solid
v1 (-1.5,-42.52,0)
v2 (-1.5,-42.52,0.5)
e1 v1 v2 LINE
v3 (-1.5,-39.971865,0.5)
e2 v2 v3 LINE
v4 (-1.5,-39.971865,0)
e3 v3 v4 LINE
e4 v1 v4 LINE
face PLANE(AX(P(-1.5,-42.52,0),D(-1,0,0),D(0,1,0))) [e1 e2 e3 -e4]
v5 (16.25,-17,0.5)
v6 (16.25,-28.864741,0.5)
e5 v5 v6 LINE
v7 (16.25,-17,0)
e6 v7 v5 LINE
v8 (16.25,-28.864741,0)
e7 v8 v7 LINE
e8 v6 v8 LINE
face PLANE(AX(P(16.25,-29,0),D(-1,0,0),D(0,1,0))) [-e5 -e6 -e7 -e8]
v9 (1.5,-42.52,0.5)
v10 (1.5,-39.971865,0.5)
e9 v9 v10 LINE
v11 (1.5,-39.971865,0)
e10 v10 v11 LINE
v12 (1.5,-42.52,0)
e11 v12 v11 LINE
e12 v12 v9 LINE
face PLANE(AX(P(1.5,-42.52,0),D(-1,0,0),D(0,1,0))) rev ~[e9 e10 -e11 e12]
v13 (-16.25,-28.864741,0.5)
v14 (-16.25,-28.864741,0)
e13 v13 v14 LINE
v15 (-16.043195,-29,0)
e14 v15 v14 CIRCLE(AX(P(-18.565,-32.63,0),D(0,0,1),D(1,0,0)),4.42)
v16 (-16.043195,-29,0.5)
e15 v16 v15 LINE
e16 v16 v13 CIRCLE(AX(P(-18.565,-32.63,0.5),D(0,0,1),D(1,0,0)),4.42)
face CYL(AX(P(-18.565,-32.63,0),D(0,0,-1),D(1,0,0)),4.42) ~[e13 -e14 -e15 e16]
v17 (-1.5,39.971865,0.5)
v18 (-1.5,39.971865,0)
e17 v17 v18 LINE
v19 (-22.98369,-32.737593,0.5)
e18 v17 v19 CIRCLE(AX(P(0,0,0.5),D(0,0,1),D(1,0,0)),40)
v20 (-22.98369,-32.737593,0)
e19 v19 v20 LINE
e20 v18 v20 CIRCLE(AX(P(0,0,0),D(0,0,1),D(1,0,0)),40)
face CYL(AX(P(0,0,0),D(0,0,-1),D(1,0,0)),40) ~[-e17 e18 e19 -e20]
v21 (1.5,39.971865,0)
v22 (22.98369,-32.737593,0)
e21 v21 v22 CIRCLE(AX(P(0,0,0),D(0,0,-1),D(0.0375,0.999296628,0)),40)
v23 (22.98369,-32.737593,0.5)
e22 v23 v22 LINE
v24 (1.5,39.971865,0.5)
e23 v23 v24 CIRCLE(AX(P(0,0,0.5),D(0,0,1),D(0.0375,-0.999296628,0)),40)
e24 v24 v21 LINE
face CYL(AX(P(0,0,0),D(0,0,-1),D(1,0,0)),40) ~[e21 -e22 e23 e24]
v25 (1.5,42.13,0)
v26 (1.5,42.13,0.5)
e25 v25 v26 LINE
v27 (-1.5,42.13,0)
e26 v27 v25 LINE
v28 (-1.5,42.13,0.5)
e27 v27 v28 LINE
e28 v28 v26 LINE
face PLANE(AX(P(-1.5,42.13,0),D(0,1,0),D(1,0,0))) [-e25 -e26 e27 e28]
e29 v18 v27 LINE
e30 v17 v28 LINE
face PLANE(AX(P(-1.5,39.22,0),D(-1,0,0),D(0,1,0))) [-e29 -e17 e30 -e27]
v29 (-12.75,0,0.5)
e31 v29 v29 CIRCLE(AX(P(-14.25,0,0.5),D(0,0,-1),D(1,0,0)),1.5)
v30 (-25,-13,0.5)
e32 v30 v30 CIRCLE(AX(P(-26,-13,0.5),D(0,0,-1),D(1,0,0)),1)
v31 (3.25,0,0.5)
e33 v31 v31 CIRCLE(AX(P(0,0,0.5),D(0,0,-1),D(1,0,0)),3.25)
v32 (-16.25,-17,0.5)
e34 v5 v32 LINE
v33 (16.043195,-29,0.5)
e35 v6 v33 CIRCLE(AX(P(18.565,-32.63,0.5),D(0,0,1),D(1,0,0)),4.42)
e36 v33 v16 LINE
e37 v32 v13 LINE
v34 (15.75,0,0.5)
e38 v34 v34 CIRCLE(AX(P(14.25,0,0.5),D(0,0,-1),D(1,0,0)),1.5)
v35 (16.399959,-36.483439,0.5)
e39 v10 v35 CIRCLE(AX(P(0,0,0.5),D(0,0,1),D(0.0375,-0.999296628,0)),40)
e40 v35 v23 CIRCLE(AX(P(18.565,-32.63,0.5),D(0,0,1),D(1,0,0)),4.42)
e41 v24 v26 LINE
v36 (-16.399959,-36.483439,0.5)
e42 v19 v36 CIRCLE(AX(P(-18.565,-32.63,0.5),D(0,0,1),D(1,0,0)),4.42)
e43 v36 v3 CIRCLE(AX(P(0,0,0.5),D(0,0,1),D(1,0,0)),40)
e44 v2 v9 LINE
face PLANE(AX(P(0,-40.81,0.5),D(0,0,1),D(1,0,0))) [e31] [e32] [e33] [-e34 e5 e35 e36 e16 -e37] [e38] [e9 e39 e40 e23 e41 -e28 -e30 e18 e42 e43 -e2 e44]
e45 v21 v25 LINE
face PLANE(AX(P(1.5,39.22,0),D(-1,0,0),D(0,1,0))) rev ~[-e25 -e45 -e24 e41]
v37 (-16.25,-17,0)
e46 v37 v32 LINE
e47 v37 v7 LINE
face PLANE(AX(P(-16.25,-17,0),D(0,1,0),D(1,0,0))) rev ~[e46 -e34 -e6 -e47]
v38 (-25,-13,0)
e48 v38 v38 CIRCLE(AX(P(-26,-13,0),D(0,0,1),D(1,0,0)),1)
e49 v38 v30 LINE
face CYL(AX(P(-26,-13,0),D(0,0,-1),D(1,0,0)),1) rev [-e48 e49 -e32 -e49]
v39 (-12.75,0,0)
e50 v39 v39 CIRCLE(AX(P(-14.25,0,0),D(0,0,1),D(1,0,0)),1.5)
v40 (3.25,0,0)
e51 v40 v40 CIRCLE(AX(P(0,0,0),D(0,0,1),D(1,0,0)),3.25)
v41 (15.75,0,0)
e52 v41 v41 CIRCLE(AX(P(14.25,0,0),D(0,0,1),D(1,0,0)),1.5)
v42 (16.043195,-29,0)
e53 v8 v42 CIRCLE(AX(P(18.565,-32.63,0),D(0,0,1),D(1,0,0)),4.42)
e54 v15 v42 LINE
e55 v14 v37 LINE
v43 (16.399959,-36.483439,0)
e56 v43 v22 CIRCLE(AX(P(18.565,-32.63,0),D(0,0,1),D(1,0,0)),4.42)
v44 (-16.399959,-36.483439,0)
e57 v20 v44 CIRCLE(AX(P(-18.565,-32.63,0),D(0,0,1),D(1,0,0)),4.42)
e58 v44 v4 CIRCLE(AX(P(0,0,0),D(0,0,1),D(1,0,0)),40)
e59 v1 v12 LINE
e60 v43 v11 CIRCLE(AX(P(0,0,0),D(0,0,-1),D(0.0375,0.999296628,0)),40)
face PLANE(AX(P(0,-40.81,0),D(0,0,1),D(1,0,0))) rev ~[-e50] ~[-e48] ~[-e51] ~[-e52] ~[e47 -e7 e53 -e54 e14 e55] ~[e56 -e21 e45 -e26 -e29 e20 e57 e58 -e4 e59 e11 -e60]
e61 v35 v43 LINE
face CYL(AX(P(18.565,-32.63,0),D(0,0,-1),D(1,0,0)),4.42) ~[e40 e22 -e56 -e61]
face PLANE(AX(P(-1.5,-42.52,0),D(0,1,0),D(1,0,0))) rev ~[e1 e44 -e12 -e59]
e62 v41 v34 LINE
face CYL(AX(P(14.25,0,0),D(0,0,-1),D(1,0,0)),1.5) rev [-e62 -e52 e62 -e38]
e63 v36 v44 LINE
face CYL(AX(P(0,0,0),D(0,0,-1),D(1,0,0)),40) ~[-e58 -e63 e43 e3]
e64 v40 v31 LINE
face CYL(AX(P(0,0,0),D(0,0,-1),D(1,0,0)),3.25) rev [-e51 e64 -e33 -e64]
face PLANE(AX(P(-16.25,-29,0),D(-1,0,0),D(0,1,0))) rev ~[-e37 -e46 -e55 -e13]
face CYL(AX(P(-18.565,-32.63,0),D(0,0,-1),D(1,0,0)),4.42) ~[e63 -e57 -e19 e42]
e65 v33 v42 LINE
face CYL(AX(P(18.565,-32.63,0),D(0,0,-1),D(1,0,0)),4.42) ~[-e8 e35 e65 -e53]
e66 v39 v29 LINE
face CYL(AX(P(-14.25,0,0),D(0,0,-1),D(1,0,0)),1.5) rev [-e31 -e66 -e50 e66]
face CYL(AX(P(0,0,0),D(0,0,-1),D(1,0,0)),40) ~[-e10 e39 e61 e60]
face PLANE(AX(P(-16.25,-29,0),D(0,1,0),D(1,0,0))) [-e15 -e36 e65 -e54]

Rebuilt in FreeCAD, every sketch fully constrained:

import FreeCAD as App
import Part
import Sketcher
from FreeCAD import Vector

doc = App.newDocument("Part")
body = doc.addObject("PartDesign::Body", "Body")

# Sketch on XY plane
sketch1 = body.newObject("Sketcher::SketchObject", "Sketch")
sketch1.AttachmentSupport = (doc.getObject("XY_Plane"), [""])
sketch1.MapMode = "FlatFace"
sketch1.addGeometry(Part.Circle(Vector(0, 0, 0), Vector(0, 0, 1), 40), False)
sketch1.addConstraint([
    Sketcher.Constraint("Coincident", 0, 3, -1, 1),
    Sketcher.Constraint("Diameter", 0, 80.0),
])
pad1 = body.newObject("PartDesign::Pad", "Pad")
pad1.Profile = sketch1
pad1.Length = 0.5

# Sketch on XY plane
sketch2 = body.newObject("Sketcher::SketchObject", "Sketch001")
sketch2.AttachmentSupport = (doc.getObject("XY_Plane"), [""])
sketch2.MapMode = "FlatFace"
sketch2.addGeometry([
    Part.LineSegment(Vector(-16, -17, 0), Vector(-16, -29, 0)),
    Part.LineSegment(Vector(-16, -29, 0), Vector(16, -29, 0)),
    Part.LineSegment(Vector(16, -29, 0), Vector(16, -17, 0)),
    Part.LineSegment(Vector(16, -17, 0), Vector(-16, -17, 0)),
], False)
sketch2.addConstraint([
    Sketcher.Constraint("Coincident", 0, 2, 1, 1),
    Sketcher.Constraint("Coincident", 1, 2, 2, 1),
    Sketcher.Constraint("Coincident", 2, 2, 3, 1),
    Sketcher.Constraint("Coincident", 3, 2, 0, 1),
    Sketcher.Constraint("Vertical", 0),
    Sketcher.Constraint("Horizontal", 1),
    Sketcher.Constraint("Vertical", 2),
    Sketcher.Constraint("Horizontal", 3),
    Sketcher.Constraint("DistanceY", 0, 2, 0, 1, 12.0),
    Sketcher.Constraint("DistanceX", 1, 1, 1, 2, 32.5),
    Sketcher.Constraint("DistanceY", 0, 2, -1, 1, 29.0),
    Sketcher.Constraint("DistanceX", 0, 2, -1, 1, 16.25),
])
pocket1 = body.newObject("PartDesign::Pocket", "Pocket")
pocket1.Profile = sketch2
pocket1.Type = "ThroughAll"
pocket1.Reversed = True

# Sketch on XY plane
sketch3 = body.newObject("Sketcher::SketchObject", "Sketch002")
sketch3.AttachmentSupport = (doc.getObject("XY_Plane"), [""])
sketch3.MapMode = "FlatFace"
sketch3.addGeometry([
    Part.Circle(Vector(0, 0, 0), Vector(0, 0, 1), 3.2),
    Part.Circle(Vector(14.2, 0, 0), Vector(0, 0, 1), 1.5),
    Part.Circle(Vector(-14.2, 0, 0), Vector(0, 0, 1), 1.5),
], False)
sketch3.addConstraint([
    Sketcher.Constraint("Coincident", 0, 3, -1, 1),
    Sketcher.Constraint("Equal", 1, 2),
    Sketcher.Constraint("Symmetric", 1, 3, 2, 3, -1, 1),
    Sketcher.Constraint("PointOnObject", 1, 3, -1),
    Sketcher.Constraint("Diameter", 1, 3.0),
    Sketcher.Constraint("Diameter", 0, 6.5),
    Sketcher.Constraint("DistanceX", 2, 3, 1, 3, 28.5),
])
pocket2 = body.newObject("PartDesign::Pocket", "Pocket001")
pocket2.Profile = sketch3
pocket2.Type = "ThroughAll"
pocket2.Reversed = True

# Sketch on XY plane
sketch4 = body.newObject("Sketcher::SketchObject", "Sketch003")
sketch4.AttachmentSupport = (doc.getObject("XY_Plane"), [""])
sketch4.MapMode = "FlatFace"
sketch4.addGeometry(Part.Circle(Vector(-26, -13, 0), Vector(0, 0, 1), 1), False)
sketch4.addConstraint([
    Sketcher.Constraint("Diameter", 0, 2.0),
    Sketcher.Constraint("DistanceX", 0, 3, -1, 1, 26.0),
    Sketcher.Constraint("DistanceY", 0, 3, -1, 1, 13.0),
])
pocket3 = body.newObject("PartDesign::Pocket", "Pocket002")
pocket3.Profile = sketch4
pocket3.Type = "ThroughAll"
pocket3.Reversed = True

# Sketch on XY plane
sketch5 = body.newObject("Sketcher::SketchObject", "Sketch004")
sketch5.AttachmentSupport = (doc.getObject("XY_Plane"), [""])
sketch5.MapMode = "FlatFace"
sketch5.addGeometry([
    Part.LineSegment(Vector(-1.5, -39.1, 0), Vector(-1.5, -42.5, 0)),  # 0
    Part.LineSegment(Vector(-1.5, -42.5, 0), Vector(1.5, -42.5, 0)),  # 1
    Part.LineSegment(Vector(1.5, -42.5, 0), Vector(1.5, -39.1, 0)),  # 2
    Part.LineSegment(Vector(1.5, -39.1, 0), Vector(-1.5, -39.1, 0)),  # 3
    Part.LineSegment(Vector(-1.5, 42.1, 0), Vector(-1.5, 39.2, 0)),  # 4
    Part.LineSegment(Vector(-1.5, 39.2, 0), Vector(1.5, 39.2, 0)),  # 5
    Part.LineSegment(Vector(1.5, 39.2, 0), Vector(1.5, 42.1, 0)),  # 6
    Part.LineSegment(Vector(1.5, 42.1, 0), Vector(-1.5, 42.1, 0)),  # 7
], False)
sketch5.addConstraint([
    Sketcher.Constraint("Coincident", 0, 2, 1, 1),
    Sketcher.Constraint("Coincident", 1, 2, 2, 1),
    Sketcher.Constraint("Coincident", 2, 2, 3, 1),
    Sketcher.Constraint("Coincident", 3, 2, 0, 1),
    Sketcher.Constraint("Coincident", 4, 2, 5, 1),
    Sketcher.Constraint("Coincident", 5, 2, 6, 1),
    Sketcher.Constraint("Coincident", 6, 2, 7, 1),
    Sketcher.Constraint("Coincident", 7, 2, 4, 1),
    Sketcher.Constraint("Vertical", 0),
    Sketcher.Constraint("Horizontal", 1),
    Sketcher.Constraint("Vertical", 2),
    Sketcher.Constraint("Horizontal", 3),
    Sketcher.Constraint("Vertical", 4),
    Sketcher.Constraint("Horizontal", 5),
    Sketcher.Constraint("Vertical", 6),
    Sketcher.Constraint("Horizontal", 7),
    Sketcher.Constraint("Vertical", 3, 2, 4, 2),
    Sketcher.Constraint("Vertical", 2, 2, 5, 2),
    Sketcher.Constraint("DistanceX", 1, 1, 1, 2, 3.0),
    Sketcher.Constraint("DistanceY", 0, 2, 0, 1, 3.42),
    Sketcher.Constraint("DistanceY", 4, 2, 4, 1, 2.91),
    Sketcher.Constraint("DistanceX", 0, 2, -1, 1, 1.5),
    Sketcher.Constraint("DistanceY", 2, 2, -1, 1, 39.1),
    Sketcher.Constraint("DistanceY", -1, 1, 4, 2, 39.22),
])
pad2 = body.newObject("PartDesign::Pad", "Pad001")
pad2.Profile = sketch5
pad2.Length = 0.5

# Sketch on XY plane
sketch6 = body.newObject("Sketcher::SketchObject", "Sketch005")
sketch6.AttachmentSupport = (doc.getObject("XY_Plane"), [""])
sketch6.MapMode = "FlatFace"
sketch6.addGeometry([
    Part.Circle(Vector(18.6, -32.6, 0), Vector(0, 0, 1), 4.4),
    Part.Circle(Vector(-18.6, -32.6, 0), Vector(0, 0, 1), 4.4),
], False)
sketch6.addConstraint([
    Sketcher.Constraint("Equal", 0, 1),
    Sketcher.Constraint("Symmetric", 0, 3, 1, 3, -2),
    Sketcher.Constraint("Diameter", 0, 8.84),
    Sketcher.Constraint("DistanceY", 0, 3, -1, 1, 32.63),
    Sketcher.Constraint("DistanceX", 1, 3, 0, 3, 37.13),
])
pad3 = body.newObject("PartDesign::Pad", "Pad002")
pad3.Profile = sketch6
pad3.Length = 0.5

doc.recompute()
